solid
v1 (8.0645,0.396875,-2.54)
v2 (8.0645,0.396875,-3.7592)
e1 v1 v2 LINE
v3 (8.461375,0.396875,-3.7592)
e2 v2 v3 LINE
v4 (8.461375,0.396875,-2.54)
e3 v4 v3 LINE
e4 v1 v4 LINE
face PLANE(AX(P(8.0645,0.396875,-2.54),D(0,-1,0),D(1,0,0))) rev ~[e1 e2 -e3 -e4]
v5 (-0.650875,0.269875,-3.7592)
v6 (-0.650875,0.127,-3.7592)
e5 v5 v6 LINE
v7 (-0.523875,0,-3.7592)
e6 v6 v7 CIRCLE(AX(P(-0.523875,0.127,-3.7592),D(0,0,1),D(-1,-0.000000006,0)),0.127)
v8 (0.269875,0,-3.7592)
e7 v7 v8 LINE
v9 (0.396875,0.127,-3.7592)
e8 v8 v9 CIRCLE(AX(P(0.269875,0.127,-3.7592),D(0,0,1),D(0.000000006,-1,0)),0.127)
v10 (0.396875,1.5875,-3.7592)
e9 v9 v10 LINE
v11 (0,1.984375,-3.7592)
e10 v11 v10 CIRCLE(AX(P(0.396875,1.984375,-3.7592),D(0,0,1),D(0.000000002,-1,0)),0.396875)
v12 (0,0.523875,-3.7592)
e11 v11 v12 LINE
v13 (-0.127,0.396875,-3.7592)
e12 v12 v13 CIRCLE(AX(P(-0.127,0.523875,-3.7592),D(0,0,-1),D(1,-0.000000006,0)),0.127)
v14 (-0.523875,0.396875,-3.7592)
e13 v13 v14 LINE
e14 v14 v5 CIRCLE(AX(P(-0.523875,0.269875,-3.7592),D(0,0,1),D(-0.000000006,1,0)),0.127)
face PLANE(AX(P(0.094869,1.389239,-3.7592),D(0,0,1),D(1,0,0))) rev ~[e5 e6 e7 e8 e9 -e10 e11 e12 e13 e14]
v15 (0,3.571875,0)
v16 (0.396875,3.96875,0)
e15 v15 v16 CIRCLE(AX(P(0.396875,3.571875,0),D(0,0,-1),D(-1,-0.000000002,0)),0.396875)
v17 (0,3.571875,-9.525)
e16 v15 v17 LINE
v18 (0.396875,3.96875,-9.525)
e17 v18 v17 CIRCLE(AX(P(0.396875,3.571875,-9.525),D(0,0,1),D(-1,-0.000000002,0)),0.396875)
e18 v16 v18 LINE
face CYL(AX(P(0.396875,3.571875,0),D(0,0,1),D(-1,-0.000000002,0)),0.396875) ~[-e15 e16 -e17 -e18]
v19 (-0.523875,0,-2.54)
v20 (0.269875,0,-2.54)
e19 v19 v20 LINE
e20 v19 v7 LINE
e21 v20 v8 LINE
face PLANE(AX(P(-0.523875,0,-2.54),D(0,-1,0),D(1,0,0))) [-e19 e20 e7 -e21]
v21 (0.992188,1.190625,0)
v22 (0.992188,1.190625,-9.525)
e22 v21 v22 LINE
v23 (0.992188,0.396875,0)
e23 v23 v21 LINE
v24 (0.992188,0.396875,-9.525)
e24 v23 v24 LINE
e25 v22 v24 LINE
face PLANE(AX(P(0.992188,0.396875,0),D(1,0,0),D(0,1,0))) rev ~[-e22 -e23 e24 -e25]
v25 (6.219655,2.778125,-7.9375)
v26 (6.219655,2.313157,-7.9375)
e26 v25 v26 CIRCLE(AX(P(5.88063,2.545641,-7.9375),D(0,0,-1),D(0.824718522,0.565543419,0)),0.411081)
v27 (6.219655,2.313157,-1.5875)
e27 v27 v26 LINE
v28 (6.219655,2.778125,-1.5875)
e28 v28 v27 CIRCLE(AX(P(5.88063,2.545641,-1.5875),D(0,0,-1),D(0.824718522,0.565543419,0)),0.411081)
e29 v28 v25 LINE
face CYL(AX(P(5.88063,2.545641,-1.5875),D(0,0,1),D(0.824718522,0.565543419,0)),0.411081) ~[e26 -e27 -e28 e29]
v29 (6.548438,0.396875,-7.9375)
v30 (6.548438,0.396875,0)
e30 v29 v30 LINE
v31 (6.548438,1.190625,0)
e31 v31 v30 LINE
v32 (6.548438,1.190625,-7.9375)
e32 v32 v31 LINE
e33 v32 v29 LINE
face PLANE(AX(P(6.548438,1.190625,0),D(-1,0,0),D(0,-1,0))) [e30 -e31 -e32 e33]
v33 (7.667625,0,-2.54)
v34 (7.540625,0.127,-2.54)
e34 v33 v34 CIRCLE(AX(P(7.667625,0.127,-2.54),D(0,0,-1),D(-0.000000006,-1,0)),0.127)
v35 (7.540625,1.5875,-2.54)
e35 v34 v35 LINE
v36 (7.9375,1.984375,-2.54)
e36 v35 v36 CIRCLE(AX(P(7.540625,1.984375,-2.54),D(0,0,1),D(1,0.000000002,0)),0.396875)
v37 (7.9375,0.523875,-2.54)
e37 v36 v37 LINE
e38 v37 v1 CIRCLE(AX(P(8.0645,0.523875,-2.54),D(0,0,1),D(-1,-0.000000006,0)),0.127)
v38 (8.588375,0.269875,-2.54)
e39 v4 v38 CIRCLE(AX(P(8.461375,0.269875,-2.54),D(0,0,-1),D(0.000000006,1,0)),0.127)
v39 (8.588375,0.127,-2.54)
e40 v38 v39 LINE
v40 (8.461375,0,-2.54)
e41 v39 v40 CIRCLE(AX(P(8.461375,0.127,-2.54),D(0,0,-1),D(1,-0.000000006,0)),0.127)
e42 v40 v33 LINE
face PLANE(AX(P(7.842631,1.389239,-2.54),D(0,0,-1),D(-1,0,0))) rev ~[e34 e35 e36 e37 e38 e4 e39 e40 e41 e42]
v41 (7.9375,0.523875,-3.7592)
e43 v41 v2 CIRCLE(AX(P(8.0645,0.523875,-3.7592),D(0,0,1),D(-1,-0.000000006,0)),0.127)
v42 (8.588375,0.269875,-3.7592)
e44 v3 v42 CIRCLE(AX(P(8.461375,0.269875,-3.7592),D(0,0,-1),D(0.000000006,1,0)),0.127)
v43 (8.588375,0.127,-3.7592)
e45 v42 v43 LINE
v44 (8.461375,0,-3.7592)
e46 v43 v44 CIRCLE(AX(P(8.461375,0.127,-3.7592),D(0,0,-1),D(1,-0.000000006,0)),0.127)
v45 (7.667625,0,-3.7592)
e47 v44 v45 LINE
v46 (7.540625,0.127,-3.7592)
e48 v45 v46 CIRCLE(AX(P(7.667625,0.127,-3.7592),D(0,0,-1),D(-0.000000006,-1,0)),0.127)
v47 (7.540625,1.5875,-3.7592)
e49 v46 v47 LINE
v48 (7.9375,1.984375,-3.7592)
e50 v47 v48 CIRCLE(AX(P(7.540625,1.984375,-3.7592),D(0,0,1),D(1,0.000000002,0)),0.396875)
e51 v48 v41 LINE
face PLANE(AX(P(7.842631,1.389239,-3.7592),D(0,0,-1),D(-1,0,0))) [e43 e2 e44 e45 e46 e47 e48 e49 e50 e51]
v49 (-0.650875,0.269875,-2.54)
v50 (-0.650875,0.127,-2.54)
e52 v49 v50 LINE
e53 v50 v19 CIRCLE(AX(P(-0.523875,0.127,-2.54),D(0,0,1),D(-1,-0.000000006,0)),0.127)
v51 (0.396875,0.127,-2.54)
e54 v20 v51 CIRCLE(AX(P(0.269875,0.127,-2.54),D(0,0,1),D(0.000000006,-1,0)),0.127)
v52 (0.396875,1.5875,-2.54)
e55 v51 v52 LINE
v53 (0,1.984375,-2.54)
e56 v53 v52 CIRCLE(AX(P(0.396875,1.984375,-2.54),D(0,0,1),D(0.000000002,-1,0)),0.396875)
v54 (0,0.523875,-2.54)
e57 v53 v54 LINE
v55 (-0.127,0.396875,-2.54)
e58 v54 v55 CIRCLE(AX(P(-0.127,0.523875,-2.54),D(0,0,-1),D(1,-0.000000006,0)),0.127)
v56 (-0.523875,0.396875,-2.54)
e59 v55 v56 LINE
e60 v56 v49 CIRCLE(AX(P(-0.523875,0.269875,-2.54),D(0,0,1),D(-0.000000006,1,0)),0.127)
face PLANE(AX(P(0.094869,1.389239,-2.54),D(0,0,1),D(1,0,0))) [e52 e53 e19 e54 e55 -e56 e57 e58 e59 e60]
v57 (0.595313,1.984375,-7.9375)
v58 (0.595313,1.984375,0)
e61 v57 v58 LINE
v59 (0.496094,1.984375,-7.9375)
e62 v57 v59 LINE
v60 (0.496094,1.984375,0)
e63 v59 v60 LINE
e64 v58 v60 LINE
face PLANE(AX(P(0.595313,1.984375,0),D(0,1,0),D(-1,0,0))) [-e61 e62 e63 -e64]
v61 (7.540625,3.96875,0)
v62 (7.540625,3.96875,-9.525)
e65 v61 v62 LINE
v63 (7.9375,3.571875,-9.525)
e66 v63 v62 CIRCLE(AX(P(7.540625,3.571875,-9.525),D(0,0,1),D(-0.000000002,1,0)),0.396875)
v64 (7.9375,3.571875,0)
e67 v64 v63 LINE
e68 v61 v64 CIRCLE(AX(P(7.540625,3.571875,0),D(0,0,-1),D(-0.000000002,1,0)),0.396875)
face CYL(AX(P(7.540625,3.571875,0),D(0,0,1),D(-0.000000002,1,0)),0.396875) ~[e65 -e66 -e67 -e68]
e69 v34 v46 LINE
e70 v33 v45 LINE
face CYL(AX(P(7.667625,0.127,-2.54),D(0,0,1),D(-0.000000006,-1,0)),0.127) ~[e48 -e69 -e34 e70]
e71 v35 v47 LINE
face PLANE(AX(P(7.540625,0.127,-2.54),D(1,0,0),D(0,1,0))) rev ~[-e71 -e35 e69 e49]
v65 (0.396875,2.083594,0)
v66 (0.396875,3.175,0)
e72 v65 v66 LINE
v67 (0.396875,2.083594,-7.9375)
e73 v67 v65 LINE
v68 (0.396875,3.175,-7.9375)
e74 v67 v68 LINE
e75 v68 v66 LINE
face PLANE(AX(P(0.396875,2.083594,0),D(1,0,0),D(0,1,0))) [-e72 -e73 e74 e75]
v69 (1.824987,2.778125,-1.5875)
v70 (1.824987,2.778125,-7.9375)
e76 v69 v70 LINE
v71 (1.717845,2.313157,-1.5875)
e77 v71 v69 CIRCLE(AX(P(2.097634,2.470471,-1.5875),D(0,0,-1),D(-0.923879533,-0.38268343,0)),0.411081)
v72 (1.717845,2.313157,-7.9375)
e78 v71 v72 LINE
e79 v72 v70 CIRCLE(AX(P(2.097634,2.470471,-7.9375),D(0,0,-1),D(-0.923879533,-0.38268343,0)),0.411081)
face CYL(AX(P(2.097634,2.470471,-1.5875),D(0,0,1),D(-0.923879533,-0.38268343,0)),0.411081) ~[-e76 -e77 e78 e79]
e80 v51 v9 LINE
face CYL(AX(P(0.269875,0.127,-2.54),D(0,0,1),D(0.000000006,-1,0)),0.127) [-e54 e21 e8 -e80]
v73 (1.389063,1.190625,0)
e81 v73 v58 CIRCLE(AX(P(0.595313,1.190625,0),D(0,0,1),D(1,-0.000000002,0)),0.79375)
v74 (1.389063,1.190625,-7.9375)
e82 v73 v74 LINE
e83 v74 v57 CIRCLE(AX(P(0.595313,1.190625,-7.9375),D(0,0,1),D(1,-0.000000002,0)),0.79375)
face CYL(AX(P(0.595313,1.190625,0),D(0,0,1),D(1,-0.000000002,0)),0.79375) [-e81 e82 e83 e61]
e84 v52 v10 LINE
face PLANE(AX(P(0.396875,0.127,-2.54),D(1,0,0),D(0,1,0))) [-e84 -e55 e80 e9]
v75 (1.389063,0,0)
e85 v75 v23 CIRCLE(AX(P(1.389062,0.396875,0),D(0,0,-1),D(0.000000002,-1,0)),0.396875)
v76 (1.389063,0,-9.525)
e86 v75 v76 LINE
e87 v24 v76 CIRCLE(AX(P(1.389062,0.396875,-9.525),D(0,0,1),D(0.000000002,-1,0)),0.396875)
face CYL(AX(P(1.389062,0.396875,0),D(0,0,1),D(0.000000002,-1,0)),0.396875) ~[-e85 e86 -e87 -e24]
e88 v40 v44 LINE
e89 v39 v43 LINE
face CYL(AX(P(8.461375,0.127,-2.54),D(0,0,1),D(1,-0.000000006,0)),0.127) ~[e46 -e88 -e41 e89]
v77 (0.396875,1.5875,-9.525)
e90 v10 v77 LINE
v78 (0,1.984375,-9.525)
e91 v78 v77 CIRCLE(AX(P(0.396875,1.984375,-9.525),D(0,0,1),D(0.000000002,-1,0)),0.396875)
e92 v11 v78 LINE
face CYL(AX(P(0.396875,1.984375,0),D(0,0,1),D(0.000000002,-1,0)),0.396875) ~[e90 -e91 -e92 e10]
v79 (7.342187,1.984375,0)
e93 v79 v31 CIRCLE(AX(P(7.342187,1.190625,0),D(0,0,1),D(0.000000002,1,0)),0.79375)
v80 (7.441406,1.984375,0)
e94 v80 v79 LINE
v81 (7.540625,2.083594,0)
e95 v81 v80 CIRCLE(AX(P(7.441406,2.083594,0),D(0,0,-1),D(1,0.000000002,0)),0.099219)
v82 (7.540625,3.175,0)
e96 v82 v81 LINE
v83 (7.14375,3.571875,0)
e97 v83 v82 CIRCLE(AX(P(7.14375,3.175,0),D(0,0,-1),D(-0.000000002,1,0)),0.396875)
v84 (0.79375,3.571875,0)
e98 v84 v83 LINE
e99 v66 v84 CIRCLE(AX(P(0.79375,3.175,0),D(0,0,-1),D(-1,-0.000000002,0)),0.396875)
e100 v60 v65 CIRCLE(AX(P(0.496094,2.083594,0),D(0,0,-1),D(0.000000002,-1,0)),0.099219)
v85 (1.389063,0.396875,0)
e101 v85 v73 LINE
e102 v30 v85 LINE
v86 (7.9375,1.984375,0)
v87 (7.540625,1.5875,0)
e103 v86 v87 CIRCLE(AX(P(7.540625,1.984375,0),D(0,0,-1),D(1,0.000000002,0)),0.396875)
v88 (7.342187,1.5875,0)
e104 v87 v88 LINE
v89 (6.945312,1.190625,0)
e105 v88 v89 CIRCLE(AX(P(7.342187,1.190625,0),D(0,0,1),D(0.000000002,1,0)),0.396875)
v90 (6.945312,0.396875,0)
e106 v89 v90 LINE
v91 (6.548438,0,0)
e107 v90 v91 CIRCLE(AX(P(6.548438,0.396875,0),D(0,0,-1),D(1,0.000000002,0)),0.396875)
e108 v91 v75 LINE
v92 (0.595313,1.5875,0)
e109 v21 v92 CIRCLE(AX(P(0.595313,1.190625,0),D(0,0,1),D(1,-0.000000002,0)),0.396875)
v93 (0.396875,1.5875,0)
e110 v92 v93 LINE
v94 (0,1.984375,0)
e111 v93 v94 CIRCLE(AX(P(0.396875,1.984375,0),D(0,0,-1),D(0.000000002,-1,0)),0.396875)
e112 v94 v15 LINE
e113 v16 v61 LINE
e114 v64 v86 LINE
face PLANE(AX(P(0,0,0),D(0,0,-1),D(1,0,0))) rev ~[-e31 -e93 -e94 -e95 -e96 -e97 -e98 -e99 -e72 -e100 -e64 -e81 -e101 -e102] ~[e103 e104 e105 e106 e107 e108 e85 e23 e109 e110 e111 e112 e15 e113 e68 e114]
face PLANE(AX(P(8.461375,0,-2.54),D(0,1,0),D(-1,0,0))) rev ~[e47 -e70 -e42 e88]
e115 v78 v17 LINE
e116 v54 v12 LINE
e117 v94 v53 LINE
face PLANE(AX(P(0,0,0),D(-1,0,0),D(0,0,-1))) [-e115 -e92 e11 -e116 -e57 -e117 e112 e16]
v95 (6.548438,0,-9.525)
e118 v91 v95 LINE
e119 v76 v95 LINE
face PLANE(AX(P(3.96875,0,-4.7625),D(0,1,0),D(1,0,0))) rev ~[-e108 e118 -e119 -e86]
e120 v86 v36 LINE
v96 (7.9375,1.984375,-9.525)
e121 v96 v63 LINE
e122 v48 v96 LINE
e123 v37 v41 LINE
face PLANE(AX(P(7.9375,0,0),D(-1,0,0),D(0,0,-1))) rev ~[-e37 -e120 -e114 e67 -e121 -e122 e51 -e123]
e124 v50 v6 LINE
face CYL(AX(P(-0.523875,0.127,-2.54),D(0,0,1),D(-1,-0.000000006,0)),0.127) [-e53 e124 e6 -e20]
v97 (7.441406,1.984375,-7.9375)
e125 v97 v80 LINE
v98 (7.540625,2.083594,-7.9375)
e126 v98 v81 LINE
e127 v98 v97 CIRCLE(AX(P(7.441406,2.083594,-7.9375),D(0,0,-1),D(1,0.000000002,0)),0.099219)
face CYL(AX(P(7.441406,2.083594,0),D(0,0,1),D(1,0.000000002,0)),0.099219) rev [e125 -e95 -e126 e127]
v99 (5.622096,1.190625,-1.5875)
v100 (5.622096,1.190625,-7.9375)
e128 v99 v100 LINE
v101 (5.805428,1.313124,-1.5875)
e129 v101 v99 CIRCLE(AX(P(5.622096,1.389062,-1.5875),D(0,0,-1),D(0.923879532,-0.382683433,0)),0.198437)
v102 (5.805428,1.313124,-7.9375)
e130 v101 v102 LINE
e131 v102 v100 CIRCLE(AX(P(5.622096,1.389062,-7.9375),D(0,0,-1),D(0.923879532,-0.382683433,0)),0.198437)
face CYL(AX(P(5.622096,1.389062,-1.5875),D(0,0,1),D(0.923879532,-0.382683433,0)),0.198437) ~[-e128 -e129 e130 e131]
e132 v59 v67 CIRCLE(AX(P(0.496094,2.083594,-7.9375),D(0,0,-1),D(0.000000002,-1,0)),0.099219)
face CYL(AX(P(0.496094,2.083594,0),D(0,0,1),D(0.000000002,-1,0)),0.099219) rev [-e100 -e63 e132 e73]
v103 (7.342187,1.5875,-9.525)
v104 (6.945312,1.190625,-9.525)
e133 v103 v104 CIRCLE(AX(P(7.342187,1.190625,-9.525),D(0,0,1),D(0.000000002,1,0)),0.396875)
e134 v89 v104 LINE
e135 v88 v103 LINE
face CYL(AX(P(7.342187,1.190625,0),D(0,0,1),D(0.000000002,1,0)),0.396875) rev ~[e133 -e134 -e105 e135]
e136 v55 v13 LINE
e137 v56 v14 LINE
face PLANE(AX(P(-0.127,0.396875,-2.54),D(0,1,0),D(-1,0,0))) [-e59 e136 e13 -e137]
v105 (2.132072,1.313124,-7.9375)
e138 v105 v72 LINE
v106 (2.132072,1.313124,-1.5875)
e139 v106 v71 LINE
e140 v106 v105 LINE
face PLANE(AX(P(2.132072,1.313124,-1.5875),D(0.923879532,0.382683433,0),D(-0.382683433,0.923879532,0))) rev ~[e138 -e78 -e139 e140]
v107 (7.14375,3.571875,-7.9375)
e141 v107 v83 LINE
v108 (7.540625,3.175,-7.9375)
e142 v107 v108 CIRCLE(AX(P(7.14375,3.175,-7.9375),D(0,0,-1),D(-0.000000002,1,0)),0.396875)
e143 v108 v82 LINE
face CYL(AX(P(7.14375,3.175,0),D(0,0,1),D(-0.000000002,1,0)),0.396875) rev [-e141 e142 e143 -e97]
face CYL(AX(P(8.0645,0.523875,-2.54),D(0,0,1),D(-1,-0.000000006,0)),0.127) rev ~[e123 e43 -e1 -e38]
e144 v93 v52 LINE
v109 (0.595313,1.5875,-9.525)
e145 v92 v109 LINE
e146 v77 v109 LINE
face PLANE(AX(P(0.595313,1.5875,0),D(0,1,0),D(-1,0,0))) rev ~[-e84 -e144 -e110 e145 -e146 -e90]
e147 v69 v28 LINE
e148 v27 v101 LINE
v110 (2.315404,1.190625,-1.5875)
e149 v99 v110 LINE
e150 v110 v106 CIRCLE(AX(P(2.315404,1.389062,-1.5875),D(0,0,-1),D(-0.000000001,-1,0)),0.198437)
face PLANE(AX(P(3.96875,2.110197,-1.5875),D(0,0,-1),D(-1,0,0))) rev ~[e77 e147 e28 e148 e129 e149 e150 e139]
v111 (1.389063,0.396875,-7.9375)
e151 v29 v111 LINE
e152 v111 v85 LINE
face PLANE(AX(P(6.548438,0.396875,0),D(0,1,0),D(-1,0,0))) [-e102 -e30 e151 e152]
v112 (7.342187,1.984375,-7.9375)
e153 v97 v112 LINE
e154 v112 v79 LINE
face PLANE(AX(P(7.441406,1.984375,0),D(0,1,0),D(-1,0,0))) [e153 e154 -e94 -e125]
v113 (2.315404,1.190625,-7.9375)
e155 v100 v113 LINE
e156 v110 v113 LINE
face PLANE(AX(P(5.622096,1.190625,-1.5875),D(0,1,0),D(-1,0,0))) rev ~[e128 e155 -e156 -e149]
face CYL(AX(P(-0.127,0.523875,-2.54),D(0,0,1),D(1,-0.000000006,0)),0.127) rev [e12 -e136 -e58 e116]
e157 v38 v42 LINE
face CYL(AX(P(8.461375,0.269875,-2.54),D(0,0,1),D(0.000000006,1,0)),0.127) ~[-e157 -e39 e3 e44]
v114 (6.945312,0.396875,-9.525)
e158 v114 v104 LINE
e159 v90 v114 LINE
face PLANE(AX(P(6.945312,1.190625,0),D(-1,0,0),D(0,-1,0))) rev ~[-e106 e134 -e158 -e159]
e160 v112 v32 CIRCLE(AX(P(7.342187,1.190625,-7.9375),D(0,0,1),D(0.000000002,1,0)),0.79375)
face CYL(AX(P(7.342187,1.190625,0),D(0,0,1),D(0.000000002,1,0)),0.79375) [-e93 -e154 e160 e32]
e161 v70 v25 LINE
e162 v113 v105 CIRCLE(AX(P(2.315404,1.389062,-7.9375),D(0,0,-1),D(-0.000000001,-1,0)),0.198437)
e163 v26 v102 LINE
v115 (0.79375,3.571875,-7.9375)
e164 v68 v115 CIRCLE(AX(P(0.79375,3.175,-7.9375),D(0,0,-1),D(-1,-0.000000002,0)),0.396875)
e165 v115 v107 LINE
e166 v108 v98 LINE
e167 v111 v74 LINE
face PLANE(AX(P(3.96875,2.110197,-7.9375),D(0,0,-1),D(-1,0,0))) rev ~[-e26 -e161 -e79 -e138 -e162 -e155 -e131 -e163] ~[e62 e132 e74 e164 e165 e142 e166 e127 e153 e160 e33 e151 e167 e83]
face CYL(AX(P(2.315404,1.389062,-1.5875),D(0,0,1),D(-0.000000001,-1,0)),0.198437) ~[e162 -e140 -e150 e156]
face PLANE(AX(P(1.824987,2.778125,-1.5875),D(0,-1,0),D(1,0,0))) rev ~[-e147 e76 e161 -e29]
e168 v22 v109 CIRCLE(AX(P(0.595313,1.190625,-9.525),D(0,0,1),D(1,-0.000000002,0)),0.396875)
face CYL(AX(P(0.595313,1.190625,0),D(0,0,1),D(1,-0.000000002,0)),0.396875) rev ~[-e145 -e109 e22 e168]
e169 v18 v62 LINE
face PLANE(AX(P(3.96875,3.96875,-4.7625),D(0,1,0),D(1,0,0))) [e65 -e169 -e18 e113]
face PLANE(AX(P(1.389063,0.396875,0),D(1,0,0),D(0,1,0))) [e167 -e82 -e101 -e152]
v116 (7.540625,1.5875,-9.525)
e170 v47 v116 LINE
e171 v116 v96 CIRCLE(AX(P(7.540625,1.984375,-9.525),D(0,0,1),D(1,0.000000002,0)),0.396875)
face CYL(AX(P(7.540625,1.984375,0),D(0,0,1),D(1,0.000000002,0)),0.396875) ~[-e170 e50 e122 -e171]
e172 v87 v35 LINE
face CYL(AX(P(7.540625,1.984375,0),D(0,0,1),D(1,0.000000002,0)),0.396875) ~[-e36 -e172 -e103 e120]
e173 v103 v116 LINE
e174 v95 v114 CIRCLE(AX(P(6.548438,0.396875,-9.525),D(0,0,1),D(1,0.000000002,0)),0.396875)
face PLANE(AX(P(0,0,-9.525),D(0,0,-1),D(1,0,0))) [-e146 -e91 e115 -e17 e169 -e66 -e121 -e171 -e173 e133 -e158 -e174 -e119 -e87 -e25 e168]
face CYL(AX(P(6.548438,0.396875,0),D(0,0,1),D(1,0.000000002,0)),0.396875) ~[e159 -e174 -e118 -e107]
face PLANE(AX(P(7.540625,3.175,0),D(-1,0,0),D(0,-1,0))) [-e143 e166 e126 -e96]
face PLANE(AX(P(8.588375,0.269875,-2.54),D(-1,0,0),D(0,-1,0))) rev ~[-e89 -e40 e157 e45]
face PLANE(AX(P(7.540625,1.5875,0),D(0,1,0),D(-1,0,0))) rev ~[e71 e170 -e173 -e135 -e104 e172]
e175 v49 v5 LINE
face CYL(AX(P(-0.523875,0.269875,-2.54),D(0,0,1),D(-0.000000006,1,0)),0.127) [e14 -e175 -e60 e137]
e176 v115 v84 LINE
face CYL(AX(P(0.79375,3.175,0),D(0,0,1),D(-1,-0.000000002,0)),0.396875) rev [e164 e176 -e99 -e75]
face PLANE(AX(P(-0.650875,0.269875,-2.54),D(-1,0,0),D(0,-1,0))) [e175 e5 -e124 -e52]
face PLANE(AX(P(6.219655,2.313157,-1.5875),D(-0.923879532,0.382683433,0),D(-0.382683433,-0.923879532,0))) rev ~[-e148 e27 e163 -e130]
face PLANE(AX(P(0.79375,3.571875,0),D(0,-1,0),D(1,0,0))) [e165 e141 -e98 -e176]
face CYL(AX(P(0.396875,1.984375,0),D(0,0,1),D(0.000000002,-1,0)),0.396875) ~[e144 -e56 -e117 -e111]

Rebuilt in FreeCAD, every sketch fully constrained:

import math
import FreeCAD as App
import Part
import Sketcher

V = App.Vector
Q = App.Units.Quantity

doc = App.newDocument("Part")
body = doc.addObject("PartDesign::Body", "Body")

sketch1 = body.newObject("Sketcher::SketchObject", "Sketch")
sketch1.AttachmentSupport = (doc.getObject("XZ_Plane"), [""])
sketch1.MapMode = "FlatFace"
sketch1.addGeometry(Part.LineSegment(V(0, -10, 0), V(0, 0, 0)), False)
sketch1.addGeometry(Part.LineSegment(V(0, 0, 0), V(8, 0, 0)), False)
sketch1.addGeometry(Part.LineSegment(V(8, 0, 0), V(8, -10, 0)), False)
sketch1.addGeometry(Part.LineSegment(V(8, -10, 0), V(0, -10, 0)), False)
sketch1.addConstraint(Sketcher.Constraint("Coincident", 0, 2, 1, 1))
sketch1.addConstraint(Sketcher.Constraint("Coincident", 1, 2, 2, 1))
sketch1.addConstraint(Sketcher.Constraint("Coincident", 2, 2, 3, 1))
sketch1.addConstraint(Sketcher.Constraint("Coincident", 3, 2, 0, 1))
sketch1.addConstraint(Sketcher.Constraint("Vertical", 0))
sketch1.addConstraint(Sketcher.Constraint("Horizontal", 1))
sketch1.addConstraint(Sketcher.Constraint("Vertical", 2))
sketch1.addConstraint(Sketcher.Constraint("Horizontal", 3))
sketch1.addConstraint(Sketcher.Constraint("Coincident", 0, 2, -1, 1))
sketch1.addConstraint(Sketcher.Constraint("DistanceX", 1, 1, 1, 2, Q("0.3125 in")))
sketch1.addConstraint(Sketcher.Constraint("DistanceY", 0, 1, 0, 2, Q("0.375 in")))
pad1 = body.newObject("PartDesign::Pad", "Pad")
pad1.Profile = sketch1
pad1.Length = Q("0.15625 in")
pad1.Reversed = True

sketch2 = body.newObject("Sketcher::SketchObject", "Sketch001")
sketch2.AttachmentSupport = (doc.getObject("XY_Plane"), [""])
sketch2.MapMode = "FlatFace"
sketch2.addGeometry(Part.LineSegment(V(-2.3, 6.27, 0), V(-2.3, -2.3, 0)), False)
sketch2.addGeometry(Part.LineSegment(V(-2.3, -2.3, 0), V(10.24, -2.3, 0)), False)
sketch2.addGeometry(Part.LineSegment(V(10.24, -2.3, 0), V(10.24, 6.27, 0)), False)
sketch2.addGeometry(Part.LineSegment(V(10.24, 6.27, 0), V(-2.3, 6.27, 0)), False)
sketch2.addGeometry(Part.ArcOfCircle(Part.Circle(V(0.4, 1.98, 0), V(0, 0, 1), 0.4), math.radians(180), math.radians(270)), False)
sketch2.addGeometry(Part.LineSegment(V(0, 1.98, 0), V(0, 3.57, 0)), False)
sketch2.addGeometry(Part.ArcOfCircle(Part.Circle(V(0.4, 3.57, 0), V(0, 0, 1), 0.4), math.radians(90), math.radians(180)), False)
sketch2.addGeometry(Part.LineSegment(V(0.4, 3.97, 0), V(7.54, 3.97, 0)), False)
sketch2.addGeometry(Part.ArcOfCircle(Part.Circle(V(7.54, 3.57, 0), V(0, 0, 1), 0.4), math.radians(0), math.radians(90)), False)
sketch2.addGeometry(Part.LineSegment(V(7.94, 3.57, 0), V(7.94, 1.98, 0)), False)
sketch2.addGeometry(Part.ArcOfCircle(Part.Circle(V(7.54, 1.98, 0), V(0, 0, 1), 0.4), math.radians(-90), math.radians(0)), False)
sketch2.addGeometry(Part.LineSegment(V(7.54, 1.59, 0), V(7.34, 1.59, 0)), False)
sketch2.addGeometry(Part.ArcOfCircle(Part.Circle(V(7.34, 1.19, 0), V(0, 0, 1), 0.4), math.radians(90), math.radians(180)), False)
sketch2.addGeometry(Part.LineSegment(V(6.95, 1.19, 0), V(6.95, 0.4, 0)), False)
sketch2.addGeometry(Part.ArcOfCircle(Part.Circle(V(6.55, 0.4, 0), V(0, 0, 1), 0.4), math.radians(-90), math.radians(0)), False)
sketch2.addGeometry(Part.LineSegment(V(6.55, 0, 0), V(1.39, 0, 0)), False)
sketch2.addGeometry(Part.ArcOfCircle(Part.Circle(V(1.39, 0.4, 0), V(0, 0, 1), 0.4), math.radians(180), math.radians(270)), False)
sketch2.addGeometry(Part.LineSegment(V(0.99, 0.4, 0), V(0.99, 1.19, 0)), False)
sketch2.addGeometry(Part.ArcOfCircle(Part.Circle(V(0.6, 1.19, 0), V(0, 0, 1), 0.4), math.radians(0), math.radians(90)), False)
sketch2.addGeometry(Part.LineSegment(V(0.6, 1.59, 0), V(0.4, 1.59, 0)), False)
sketch2.addConstraint(Sketcher.Constraint("Coincident", 0, 2, 1, 1))
sketch2.addConstraint(Sketcher.Constraint("Coincident", 1, 2, 2, 1))
sketch2.addConstraint(Sketcher.Constraint("Coincident", 2, 2, 3, 1))
sketch2.addConstraint(Sketcher.Constraint("Coincident", 3, 2, 0, 1))
sketch2.addConstraint(Sketcher.Constraint("Tangent", 4, 1, 5, 1))
sketch2.addConstraint(Sketcher.Constraint("Tangent", 5, 2, 6, 2))
sketch2.addConstraint(Sketcher.Constraint("Tangent", 6, 1, 7, 1))
sketch2.addConstraint(Sketcher.Constraint("Tangent", 7, 2, 8, 2))
sketch2.addConstraint(Sketcher.Constraint("Tangent", 8, 1, 9, 1))
sketch2.addConstraint(Sketcher.Constraint("Tangent", 9, 2, 10, 2))
sketch2.addConstraint(Sketcher.Constraint("Tangent", 10, 1, 11, 1))
sketch2.addConstraint(Sketcher.Constraint("Tangent", 11, 2, 12, 1))
sketch2.addConstraint(Sketcher.Constraint("Tangent", 12, 2, 13, 1))
sketch2.addConstraint(Sketcher.Constraint("Tangent", 13, 2, 14, 2))
sketch2.addConstraint(Sketcher.Constraint("Tangent", 14, 1, 15, 1))
sketch2.addConstraint(Sketcher.Constraint("Tangent", 15, 2, 16, 2))
sketch2.addConstraint(Sketcher.Constraint("Tangent", 16, 1, 17, 1))
sketch2.addConstraint(Sketcher.Constraint("Tangent", 17, 2, 18, 1))
sketch2.addConstraint(Sketcher.Constraint("Tangent", 18, 2, 19, 1))
sketch2.addConstraint(Sketcher.Constraint("Tangent", 19, 2, 4, 2))
sketch2.addConstraint(Sketcher.Constraint("Vertical", 0))
sketch2.addConstraint(Sketcher.Constraint("Horizontal", 1))
sketch2.addConstraint(Sketcher.Constraint("Vertical", 2))
sketch2.addConstraint(Sketcher.Constraint("Horizontal", 3))
sketch2.addConstraint(Sketcher.Constraint("Vertical", 5))
sketch2.addConstraint(Sketcher.Constraint("Horizontal", 7))
sketch2.addConstraint(Sketcher.Constraint("Vertical", 9))
sketch2.addConstraint(Sketcher.Constraint("Horizontal", 11))
sketch2.addConstraint(Sketcher.Constraint("Vertical", 13))
sketch2.addConstraint(Sketcher.Constraint("Horizontal", 15))
sketch2.addConstraint(Sketcher.Constraint("Vertical", 17))
sketch2.addConstraint(Sketcher.Constraint("Horizontal", 19))
sketch2.addConstraint(Sketcher.Constraint("Equal", 4, 6))
sketch2.addConstraint(Sketcher.Constraint("Equal", 6, 8))
sketch2.addConstraint(Sketcher.Constraint("Equal", 8, 10))
sketch2.addConstraint(Sketcher.Constraint("Equal", 10, 12))
sketch2.addConstraint(Sketcher.Constraint("Equal", 12, 14))
sketch2.addConstraint(Sketcher.Constraint("Equal", 14, 16))
sketch2.addConstraint(Sketcher.Constraint("Equal", 16, 18))
sketch2.addConstraint(Sketcher.Constraint("PointOnObject", 4, 1, -2))
sketch2.addConstraint(Sketcher.Constraint("PointOnObject", 14, 1, -1))
sketch2.addConstraint(Sketcher.Constraint("Horizontal", 4, 3, 10, 3))
sketch2.addConstraint(Sketcher.Constraint("Equal", 11, 19))
sketch2.addConstraint(Sketcher.Constraint("Radius", 4, Q("0.015625 in")))
sketch2.addConstraint(Sketcher.Constraint("DistanceX", 7, 1, 7, 2, Q("0.28125 in")))
sketch2.addConstraint(Sketcher.Constraint("DistanceX", 15, 2, 15, 1, Q("0.203125 in")))
sketch2.addConstraint(Sketcher.Constraint("DistanceY", 5, 1, 5, 2, Q("0.0625 in")))
sketch2.addConstraint(Sketcher.Constraint("DistanceY", 13, 2, 13, 1, Q("0.03125 in")))
sketch2.addConstraint(Sketcher.Constraint("DistanceX", 1, 1, 1, 2, 12.541))
sketch2.addConstraint(Sketcher.Constraint("DistanceY", 0, 2, 0, 1, 8.573))
sketch2.addConstraint(Sketcher.Constraint("DistanceX", 0, 2, -1, 1, 2.302))
sketch2.addConstraint(Sketcher.Constraint("DistanceY", 0, 2, -1, 1, 2.302))
pocket1 = body.newObject("PartDesign::Pocket", "Pocket")
pocket1.Profile = sketch2
pocket1.Type = "ThroughAll"

sketch3 = body.newObject("Sketcher::SketchObject", "Sketch002")
sketch3.AttachmentSupport = (doc.getObject("XY_Plane"), [""])
sketch3.MapMode = "FlatFace"
sketch3.addGeometry(Part.ArcOfCircle(Part.Circle(V(0.6, 1.19, 0), V(0, 0, 1), 0.79), math.radians(0), math.radians(90)), False)
sketch3.addGeometry(Part.LineSegment(V(1.39, 1.19, 0), V(1.39, 0.4, 0)), False)
sketch3.addGeometry(Part.LineSegment(V(1.39, 0.4, 0), V(6.55, 0.4, 0)), False)
sketch3.addGeometry(Part.LineSegment(V(6.55, 0.4, 0), V(6.55, 1.19, 0)), False)
sketch3.addGeometry(Part.ArcOfCircle(Part.Circle(V(7.34, 1.19, 0), V(0, 0, 1), 0.79), math.radians(90), math.radians(180)), False)
sketch3.addGeometry(Part.LineSegment(V(7.34, 1.98, 0), V(7.44, 1.98, 0)), False)
sketch3.addGeometry(Part.ArcOfCircle(Part.Circle(V(7.44, 2.08, 0), V(0, 0, 1), 0.1), math.radians(-90), math.radians(0)), False)
sketch3.addGeometry(Part.LineSegment(V(7.54, 2.08, 0), V(7.54, 3.17, 0)), False)
sketch3.addGeometry(Part.ArcOfCircle(Part.Circle(V(7.14, 3.18, 0), V(0, 0, 1), 0.4), math.radians(0), math.radians(90)), False)
sketch3.addGeometry(Part.LineSegment(V(7.14, 3.57, 0), V(0.79, 3.57, 0)), False)
sketch3.addGeometry(Part.ArcOfCircle(Part.Circle(V(0.79, 3.18, 0), V(0, 0, 1), 0.4), math.radians(90), math.radians(180)), False)
sketch3.addGeometry(Part.LineSegment(V(0.4, 3.17, 0), V(0.4, 2.08, 0)), False)
sketch3.addGeometry(Part.ArcOfCircle(Part.Circle(V(0.5, 2.08, 0), V(0, 0, 1), 0.1), math.radians(180), math.radians(270)), False)
sketch3.addGeometry(Part.LineSegment(V(0.5, 1.98, 0), V(0.6, 1.98, 0)), False)
sketch3.addConstraint(Sketcher.Constraint("Tangent", 0, 1, 1, 1))
sketch3.addConstraint(Sketcher.Constraint("Coincident", 1, 2, 2, 1))
sketch3.addConstraint(Sketcher.Constraint("Coincident", 2, 2, 3, 1))
sketch3.addConstraint(Sketcher.Constraint("Tangent", 3, 2, 4, 2))
sketch3.addConstraint(Sketcher.Constraint("Tangent", 4, 1, 5, 1))
sketch3.addConstraint(Sketcher.Constraint("Tangent", 5, 2, 6, 1))
sketch3.addConstraint(Sketcher.Constraint("Tangent", 6, 2, 7, 1))
sketch3.addConstraint(Sketcher.Constraint("Tangent", 7, 2, 8, 1))
sketch3.addConstraint(Sketcher.Constraint("Tangent", 8, 2, 9, 1))
sketch3.addConstraint(Sketcher.Constraint("Tangent", 9, 2, 10, 1))
sketch3.addConstraint(Sketcher.Constraint("Tangent", 10, 2, 11, 1))
sketch3.addConstraint(Sketcher.Constraint("Tangent", 11, 2, 12, 1))
sketch3.addConstraint(Sketcher.Constraint("Tangent", 12, 2, 13, 1))
sketch3.addConstraint(Sketcher.Constraint("Tangent", 13, 2, 0, 2))
sketch3.addConstraint(Sketcher.Constraint("Vertical", 1))
sketch3.addConstraint(Sketcher.Constraint("Horizontal", 2))
sketch3.addConstraint(Sketcher.Constraint("Vertical", 3))
sketch3.addConstraint(Sketcher.Constraint("Horizontal", 5))
sketch3.addConstraint(Sketcher.Constraint("Vertical", 7))
sketch3.addConstraint(Sketcher.Constraint("Horizontal", 9))
sketch3.addConstraint(Sketcher.Constraint("Vertical", 11))
sketch3.addConstraint(Sketcher.Constraint("Horizontal", 13))
sketch3.addConstraint(Sketcher.Constraint("Equal", 0, 4))
sketch3.addConstraint(Sketcher.Constraint("Equal", 8, 10))
sketch3.addConstraint(Sketcher.Constraint("Equal", 6, 12))
sketch3.addConstraint(Sketcher.Constraint("Horizontal", 0, 3, 4, 3))
sketch3.addConstraint(Sketcher.Constraint("Equal", 5, 13))
sketch3.addConstraint(Sketcher.Constraint("Radius", 0, Q("0.03125 in")))
sketch3.addConstraint(Sketcher.Constraint("Radius", 8, Q("0.015625 in")))
sketch3.addConstraint(Sketcher.Constraint("DistanceX", 9, 2, 9, 1, Q("0.25 in")))
sketch3.addConstraint(Sketcher.Constraint("DistanceX", 2, 1, 2, 2, Q("0.203125 in")))
sketch3.addConstraint(Sketcher.Constraint("DistanceY", 1, 2, 1, 1, Q("0.03125 in")))
sketch3.addConstraint(Sketcher.Constraint("DistanceY", -1, 1, 0, 3, Q("0.046875 in")))
sketch3.addConstraint(Sketcher.Constraint("DistanceX", -1, 1, 8, 3, Q("0.28125 in")))
sketch3.addConstraint(Sketcher.Constraint("DistanceY", -1, 1, 8, 3, Q("0.125 in")))
sketch3.addConstraint(Sketcher.Constraint("Radius", 6, 0.099219))
pocket2 = body.newObject("PartDesign::Pocket", "Pocket001")
pocket2.Profile = sketch3
pocket2.Length = Q("0.0625 in")

sketch4 = body.newObject("Sketcher::SketchObject", "Sketch003")
sketch4.AttachmentSupport = (doc.getObject("XY_Plane"), [""])
sketch4.MapMode = "FlatFace"
sketch4.AttachmentOffset = App.Placement(V(0, 0, -0.0625 * 25.4), App.Rotation())
sketch4.addGeometry(Part.LineSegment(V(7.14, 3.57, 0), V(0.79, 3.57, 0)), False)
sketch4.addGeometry(Part.ArcOfCircle(Part.Circle(V(0.79, 3.18, 0), V(0, 0, 1), 0.4), math.radians(90), math.radians(180)), False)
sketch4.addGeometry(Part.LineSegment(V(0.4, 3.17, 0), V(0.4, 2.08, 0)), False)
sketch4.addGeometry(Part.ArcOfCircle(Part.Circle(V(0.5, 2.08, 0), V(0, 0, 1), 0.1), math.radians(180), math.radians(270)), False)
sketch4.addGeometry(Part.LineSegment(V(0.5, 1.98, 0), V(0.6, 1.98, 0)), False)
sketch4.addGeometry(Part.ArcOfCircle(Part.Circle(V(0.6, 1.19, 0), V(0, 0, 1), 0.79), math.radians(0), math.radians(90)), False)
sketch4.addGeometry(Part.LineSegment(V(1.39, 1.19, 0), V(1.39, 0.4, 0)), False)
sketch4.addGeometry(Part.LineSegment(V(1.39, 0.4, 0), V(6.55, 0.4, 0)), False)
sketch4.addGeometry(Part.LineSegment(V(6.55, 0.4, 0), V(6.55, 1.19, 0)), False)
sketch4.addGeometry(Part.ArcOfCircle(Part.Circle(V(7.34, 1.19, 0), V(0, 0, 1), 0.79), math.radians(90), math.radians(180)), False)
sketch4.addGeometry(Part.LineSegment(V(7.34, 1.98, 0), V(7.44, 1.98, 0)), False)
sketch4.addGeometry(Part.ArcOfCircle(Part.Circle(V(7.44, 2.08, 0), V(0, 0, 1), 0.1), math.radians(-90), math.radians(0)), False)
sketch4.addGeometry(Part.LineSegment(V(7.54, 2.08, 0), V(7.54, 3.17, 0)), False)
sketch4.addGeometry(Part.ArcOfCircle(Part.Circle(V(7.14, 3.18, 0), V(0, 0, 1), 0.4), math.radians(0), math.radians(90)), False)
sketch4.addGeometry(Part.LineSegment(V(1.82, 2.78, 0), V(6.22, 2.78, 0)), False)
sketch4.addGeometry(Part.ArcOfCircle(Part.Circle(V(5.88, 2.55, 0), V(0, 0, 1), 0.41), math.radians(-34), math.radians(34)), False)
sketch4.addGeometry(Part.LineSegment(V(6.22, 2.31, 0), V(5.81, 1.31, 0)), False)
sketch4.addGeometry(Part.ArcOfCircle(Part.Circle(V(5.62, 1.39, 0), V(0, 0, 1), 0.2), math.radians(-90), math.radians(-23)), False)
sketch4.addGeometry(Part.LineSegment(V(5.62, 1.19, 0), V(2.32, 1.19, 0)), False)
sketch4.addGeometry(Part.ArcOfCircle(Part.Circle(V(2.32, 1.39, 0), V(0, 0, 1), 0.2), math.radians(-157), math.radians(-90)), False)
sketch4.addGeometry(Part.LineSegment(V(2.13, 1.31, 0), V(1.72, 2.31, 0)), False)
sketch4.addGeometry(Part.ArcOfCircle(Part.Circle(V(2.1, 2.47, 0), V(0, 0, 1), 0.41), math.radians(132), math.radians(202)), False)
sketch4.addConstraint(Sketcher.Constraint("Tangent", 0, 2, 1, 1))
sketch4.addConstraint(Sketcher.Constraint("Tangent", 1, 2, 2, 1))
sketch4.addConstraint(Sketcher.Constraint("Tangent", 2, 2, 3, 1))
sketch4.addConstraint(Sketcher.Constraint("Tangent", 3, 2, 4, 1))
sketch4.addConstraint(Sketcher.Constraint("Tangent", 4, 2, 5, 2))
sketch4.addConstraint(Sketcher.Constraint("Tangent", 5, 1, 6, 1))
sketch4.addConstraint(Sketcher.Constraint("Coincident", 6, 2, 7, 1))
sketch4.addConstraint(Sketcher.Constraint("Coincident", 7, 2, 8, 1))
sketch4.addConstraint(Sketcher.Constraint("Tangent", 8, 2, 9, 2))
sketch4.addConstraint(Sketcher.Constraint("Tangent", 9, 1, 10, 1))
sketch4.addConstraint(Sketcher.Constraint("Tangent", 10, 2, 11, 1))
sketch4.addConstraint(Sketcher.Constraint("Tangent", 11, 2, 12, 1))
sketch4.addConstraint(Sketcher.Constraint("Tangent", 12, 2, 13, 1))
sketch4.addConstraint(Sketcher.Constraint("Tangent", 13, 2, 0, 1))
sketch4.addConstraint(Sketcher.Constraint("Coincident", 14, 2, 15, 2))
sketch4.addConstraint(Sketcher.Constraint("Coincident", 15, 1, 16, 1))
sketch4.addConstraint(Sketcher.Constraint("Tangent", 16, 2, 17, 2))
sketch4.addConstraint(Sketcher.Constraint("Tangent", 17, 1, 18, 1))
sketch4.addConstraint(Sketcher.Constraint("Tangent", 18, 2, 19, 2))
sketch4.addConstraint(Sketcher.Constraint("Tangent", 19, 1, 20, 1))
sketch4.addConstraint(Sketcher.Constraint("Tangent", 20, 2, 21, 2))
sketch4.addConstraint(Sketcher.Constraint("Coincident", 21, 1, 14, 1))
sketch4.addConstraint(Sketcher.Constraint("Horizontal", 0))
sketch4.addConstraint(Sketcher.Constraint("Vertical", 2))
sketch4.addConstraint(Sketcher.Constraint("Horizontal", 4))
sketch4.addConstraint(Sketcher.Constraint("Vertical", 6))
sketch4.addConstraint(Sketcher.Constraint("Horizontal", 7))
sketch4.addConstraint(Sketcher.Constraint("Vertical", 8))
sketch4.addConstraint(Sketcher.Constraint("Horizontal", 10))
sketch4.addConstraint(Sketcher.Constraint("Vertical", 12))
sketch4.addConstraint(Sketcher.Constraint("Horizontal", 14))
sketch4.addConstraint(Sketcher.Constraint("Horizontal", 18))
sketch4.addConstraint(Sketcher.Constraint("Equal", 5, 9))
sketch4.addConstraint(Sketcher.Constraint("Equal", 3, 11))
sketch4.addConstraint(Sketcher.Constraint("Equal", 1, 13))
sketch4.addConstraint(Sketcher.Constraint("Equal", 17, 19))
sketch4.addConstraint(Sketcher.Constraint("Equal", 15, 21))
sketch4.addConstraint(Sketcher.Constraint("Horizontal", 5, 3, 9, 3))
sketch4.addConstraint(Sketcher.Constraint("Horizontal", 8, 2, 17, 1))
sketch4.addConstraint(Sketcher.Constraint("Horizontal", 16, 2, 19, 1))
sketch4.addConstraint(Sketcher.Constraint("Horizontal", 15, 1, 20, 2))
sketch4.addConstraint(Sketcher.Constraint("Vertical", 14, 2, 15, 1))
sketch4.addConstraint(Sketcher.Constraint("Equal", 4, 10))
sketch4.addConstraint(Sketcher.Constraint("Radius", 1, Q("0.015625 in")))
sketch4.addConstraint(Sketcher.Constraint("Radius", 5, Q("0.03125 in")))
sketch4.addConstraint(Sketcher.Constraint("DistanceX", 0, 2, 0, 1, Q("0.25 in")))
sketch4.addConstraint(Sketcher.Constraint("Angle", 16, Q("-112.5 deg")))
sketch4.addConstraint(Sketcher.Constraint("DistanceX", 7, 1, 7, 2, Q("0.203125 in")))
sketch4.addConstraint(Sketcher.Constraint("DistanceY", 6, 2, 6, 1, Q("0.03125 in")))
sketch4.addConstraint(Sketcher.Constraint("DistanceX", -1, 1, 1, 3, Q("0.03125 in")))
sketch4.addConstraint(Sketcher.Constraint("DistanceY", -1, 1, 1, 3, Q("0.125 in")))
sketch4.addConstraint(Sketcher.Constraint("DistanceY", -1, 1, 5, 3, Q("0.046875 in")))
sketch4.addConstraint(Sketcher.Constraint("DistanceY", -1, 1, 14, 2, Q("0.109375 in")))
sketch4.addConstraint(Sketcher.Constraint("Radius", 3, 0.099219))
sketch4.addConstraint(Sketcher.Constraint("Radius", 15, 0.411081))
sketch4.addConstraint(Sketcher.Constraint("Radius", 17, 0.198437))
sketch4.addConstraint(Sketcher.Constraint("DistanceX", 1, 3, 21, 1, Q("0.0405999 in")))
sketch4.addConstraint(Sketcher.Constraint("DistanceX", 14, 1, 14, 2, 4.394669))
sketch4.addConstraint(Sketcher.Constraint("DistanceX", 18, 2, 18, 1, 3.306692))
pocket3 = body.newObject("PartDesign::Pocket", "Pocket002")
pocket3.Profile = sketch4
pocket3.Length = Q("0.25 in")

sketch5 = body.newObject("Sketcher::SketchObject", "Sketch004")
sketch5.AttachmentSupport = (doc.getObject("XY_Plane"), [""])
sketch5.MapMode = "FlatFace"
sketch5.AttachmentOffset = App.Placement(V(0, 0, -0.1 * 25.4), App.Rotation())
sketch5.addGeometry(Part.LineSegment(V(0, 3.14, 0), V(0, 0.52, 0)), False)
sketch5.addGeometry(Part.ArcOfCircle(Part.Circle(V(-0.13, 0.52, 0), V(0, 0, 1), 0.13), math.radians(-90), math.radians(0)), False)
sketch5.addGeometry(Part.LineSegment(V(-0.13, 0.4, 0), V(-0.52, 0.4, 0)), False)
sketch5.addGeometry(Part.ArcOfCircle(Part.Circle(V(-0.52, 0.27, 0), V(0, 0, 1), 0.13), math.radians(90), math.radians(180)), False)
sketch5.addGeometry(Part.LineSegment(V(-0.65, 0.27, 0), V(-0.65, 0.13, 0)), False)
sketch5.addGeometry(Part.ArcOfCircle(Part.Circle(V(-0.52, 0.13, 0), V(0, 0, 1), 0.13), math.radians(-180), math.radians(-90)), False)
sketch5.addGeometry(Part.LineSegment(V(-0.52, 0, 0), V(0.27, 0, 0)), False)
sketch5.addGeometry(Part.ArcOfCircle(Part.Circle(V(0.27, 0.13, 0), V(0, 0, 1), 0.13), math.radians(-90), math.radians(0)), False)
sketch5.addGeometry(Part.LineSegment(V(0.4, 0.13, 0), V(0.4, 3.14, 0)), False)
sketch5.addGeometry(Part.LineSegment(V(0.4, 3.14, 0), V(0, 3.14, 0)), False)
sketch5.addGeometry(Part.LineSegment(V(7.94, 3.14, 0), V(7.54, 3.14, 0)), False)
sketch5.addGeometry(Part.LineSegment(V(7.54, 3.14, 0), V(7.54, 0.13, 0)), False)
sketch5.addGeometry(Part.ArcOfCircle(Part.Circle(V(7.67, 0.13, 0), V(0, 0, 1), 0.13), math.radians(-180), math.radians(-90)), False)
sketch5.addGeometry(Part.LineSegment(V(7.67, 0, 0), V(8.46, 0, 0)), False)
sketch5.addGeometry(Part.ArcOfCircle(Part.Circle(V(8.46, 0.13, 0), V(0, 0, 1), 0.13), math.radians(-90), math.radians(0)), False)
sketch5.addGeometry(Part.LineSegment(V(8.59, 0.13, 0), V(8.59, 0.27, 0)), False)
sketch5.addGeometry(Part.ArcOfCircle(Part.Circle(V(8.46, 0.27, 0), V(0, 0, 1), 0.13), math.radians(0), math.radians(90)), False)
sketch5.addGeometry(Part.LineSegment(V(8.46, 0.4, 0), V(8.06, 0.4, 0)), False)
sketch5.addGeometry(Part.ArcOfCircle(Part.Circle(V(8.06, 0.52, 0), V(0, 0, 1), 0.13), math.radians(-180), math.radians(-90)), False)
sketch5.addGeometry(Part.LineSegment(V(7.94, 0.52, 0), V(7.94, 3.14, 0)), False)
sketch5.addConstraint(Sketcher.Constraint("Tangent", 0, 2, 1, 2))
sketch5.addConstraint(Sketcher.Constraint("Tangent", 1, 1, 2, 1))
sketch5.addConstraint(Sketcher.Constraint("Tangent", 2, 2, 3, 1))
sketch5.addConstraint(Sketcher.Constraint("Tangent", 3, 2, 4, 1))
sketch5.addConstraint(Sketcher.Constraint("Tangent", 4, 2, 5, 1))
sketch5.addConstraint(Sketcher.Constraint("Tangent", 5, 2, 6, 1))
sketch5.addConstraint(Sketcher.Constraint("Tangent", 6, 2, 7, 1))
sketch5.addConstraint(Sketcher.Constraint("Tangent", 7, 2, 8, 1))
sketch5.addConstraint(Sketcher.Constraint("Coincident", 8, 2, 9, 1))
sketch5.addConstraint(Sketcher.Constraint("Coincident", 9, 2, 0, 1))
sketch5.addConstraint(Sketcher.Constraint("Coincident", 10, 2, 11, 1))
sketch5.addConstraint(Sketcher.Constraint("Tangent", 11, 2, 12, 1))
sketch5.addConstraint(Sketcher.Constraint("Tangent", 12, 2, 13, 1))
sketch5.addConstraint(Sketcher.Constraint("Tangent", 13, 2, 14, 1))
sketch5.addConstraint(Sketcher.Constraint("Tangent", 14, 2, 15, 1))
sketch5.addConstraint(Sketcher.Constraint("Tangent", 15, 2, 16, 1))
sketch5.addConstraint(Sketcher.Constraint("Tangent", 16, 2, 17, 1))
sketch5.addConstraint(Sketcher.Constraint("Tangent", 17, 2, 18, 2))
sketch5.addConstraint(Sketcher.Constraint("Tangent", 18, 1, 19, 1))
sketch5.addConstraint(Sketcher.Constraint("Coincident", 19, 2, 10, 1))
sketch5.addConstraint(Sketcher.Constraint("Vertical", 0))
sketch5.addConstraint(Sketcher.Constraint("Horizontal", 2))
sketch5.addConstraint(Sketcher.Constraint("Vertical", 4))
sketch5.addConstraint(Sketcher.Constraint("Horizontal", 6))
sketch5.addConstraint(Sketcher.Constraint("Vertical", 8))
sketch5.addConstraint(Sketcher.Constraint("Horizontal", 9))
sketch5.addConstraint(Sketcher.Constraint("Horizontal", 10))
sketch5.addConstraint(Sketcher.Constraint("Vertical", 11))
sketch5.addConstraint(Sketcher.Constraint("Horizontal", 13))
sketch5.addConstraint(Sketcher.Constraint("Vertical", 15))
sketch5.addConstraint(Sketcher.Constraint("Horizontal", 17))
sketch5.addConstraint(Sketcher.Constraint("Vertical", 19))
sketch5.addConstraint(Sketcher.Constraint("Equal", 1, 3))
sketch5.addConstraint(Sketcher.Constraint("Equal", 3, 5))
sketch5.addConstraint(Sketcher.Constraint("Equal", 5, 7))
sketch5.addConstraint(Sketcher.Constraint("Equal", 7, 12))
sketch5.addConstraint(Sketcher.Constraint("Equal", 12, 14))
sketch5.addConstraint(Sketcher.Constraint("Equal", 14, 16))
sketch5.addConstraint(Sketcher.Constraint("Equal", 16, 18))
sketch5.addConstraint(Sketcher.Constraint("PointOnObject", 0, 2, -2))
sketch5.addConstraint(Sketcher.Constraint("PointOnObject", 5, 2, -1))
sketch5.addConstraint(Sketcher.Constraint("PointOnObject", 12, 2, -1))
sketch5.addConstraint(Sketcher.Constraint("Horizontal", 3, 3, 16, 3))
sketch5.addConstraint(Sketcher.Constraint("Horizontal", 9, 2, 10, 2))
sketch5.addConstraint(Sketcher.Constraint("Equal", 2, 9))
sketch5.addConstraint(Sketcher.Constraint("Equal", 9, 10))
sketch5.addConstraint(Sketcher.Constraint("Equal", 6, 13))
sketch5.addConstraint(Sketcher.Constraint("Radius", 1, Q("0.005 in")))
sketch5.addConstraint(Sketcher.Constraint("DistanceX", 2, 2, 2, 1, Q("0.015625 in")))
sketch5.addConstraint(Sketcher.Constraint("DistanceY", -1, 1, 1, 1, Q("0.015625 in")))
sketch5.addConstraint(Sketcher.Constraint("DistanceX", -1, 1, 10, 2, Q("0.296875 in")))
sketch5.addConstraint(Sketcher.Constraint("DistanceY", 8, 1, 8, 2, 3.012541))
pad2 = body.newObject("PartDesign::Pad", "Pad001")
pad2.Profile = sketch5
pad2.Length = Q("0.048 in")
pad2.Reversed = True

doc.recompute()
